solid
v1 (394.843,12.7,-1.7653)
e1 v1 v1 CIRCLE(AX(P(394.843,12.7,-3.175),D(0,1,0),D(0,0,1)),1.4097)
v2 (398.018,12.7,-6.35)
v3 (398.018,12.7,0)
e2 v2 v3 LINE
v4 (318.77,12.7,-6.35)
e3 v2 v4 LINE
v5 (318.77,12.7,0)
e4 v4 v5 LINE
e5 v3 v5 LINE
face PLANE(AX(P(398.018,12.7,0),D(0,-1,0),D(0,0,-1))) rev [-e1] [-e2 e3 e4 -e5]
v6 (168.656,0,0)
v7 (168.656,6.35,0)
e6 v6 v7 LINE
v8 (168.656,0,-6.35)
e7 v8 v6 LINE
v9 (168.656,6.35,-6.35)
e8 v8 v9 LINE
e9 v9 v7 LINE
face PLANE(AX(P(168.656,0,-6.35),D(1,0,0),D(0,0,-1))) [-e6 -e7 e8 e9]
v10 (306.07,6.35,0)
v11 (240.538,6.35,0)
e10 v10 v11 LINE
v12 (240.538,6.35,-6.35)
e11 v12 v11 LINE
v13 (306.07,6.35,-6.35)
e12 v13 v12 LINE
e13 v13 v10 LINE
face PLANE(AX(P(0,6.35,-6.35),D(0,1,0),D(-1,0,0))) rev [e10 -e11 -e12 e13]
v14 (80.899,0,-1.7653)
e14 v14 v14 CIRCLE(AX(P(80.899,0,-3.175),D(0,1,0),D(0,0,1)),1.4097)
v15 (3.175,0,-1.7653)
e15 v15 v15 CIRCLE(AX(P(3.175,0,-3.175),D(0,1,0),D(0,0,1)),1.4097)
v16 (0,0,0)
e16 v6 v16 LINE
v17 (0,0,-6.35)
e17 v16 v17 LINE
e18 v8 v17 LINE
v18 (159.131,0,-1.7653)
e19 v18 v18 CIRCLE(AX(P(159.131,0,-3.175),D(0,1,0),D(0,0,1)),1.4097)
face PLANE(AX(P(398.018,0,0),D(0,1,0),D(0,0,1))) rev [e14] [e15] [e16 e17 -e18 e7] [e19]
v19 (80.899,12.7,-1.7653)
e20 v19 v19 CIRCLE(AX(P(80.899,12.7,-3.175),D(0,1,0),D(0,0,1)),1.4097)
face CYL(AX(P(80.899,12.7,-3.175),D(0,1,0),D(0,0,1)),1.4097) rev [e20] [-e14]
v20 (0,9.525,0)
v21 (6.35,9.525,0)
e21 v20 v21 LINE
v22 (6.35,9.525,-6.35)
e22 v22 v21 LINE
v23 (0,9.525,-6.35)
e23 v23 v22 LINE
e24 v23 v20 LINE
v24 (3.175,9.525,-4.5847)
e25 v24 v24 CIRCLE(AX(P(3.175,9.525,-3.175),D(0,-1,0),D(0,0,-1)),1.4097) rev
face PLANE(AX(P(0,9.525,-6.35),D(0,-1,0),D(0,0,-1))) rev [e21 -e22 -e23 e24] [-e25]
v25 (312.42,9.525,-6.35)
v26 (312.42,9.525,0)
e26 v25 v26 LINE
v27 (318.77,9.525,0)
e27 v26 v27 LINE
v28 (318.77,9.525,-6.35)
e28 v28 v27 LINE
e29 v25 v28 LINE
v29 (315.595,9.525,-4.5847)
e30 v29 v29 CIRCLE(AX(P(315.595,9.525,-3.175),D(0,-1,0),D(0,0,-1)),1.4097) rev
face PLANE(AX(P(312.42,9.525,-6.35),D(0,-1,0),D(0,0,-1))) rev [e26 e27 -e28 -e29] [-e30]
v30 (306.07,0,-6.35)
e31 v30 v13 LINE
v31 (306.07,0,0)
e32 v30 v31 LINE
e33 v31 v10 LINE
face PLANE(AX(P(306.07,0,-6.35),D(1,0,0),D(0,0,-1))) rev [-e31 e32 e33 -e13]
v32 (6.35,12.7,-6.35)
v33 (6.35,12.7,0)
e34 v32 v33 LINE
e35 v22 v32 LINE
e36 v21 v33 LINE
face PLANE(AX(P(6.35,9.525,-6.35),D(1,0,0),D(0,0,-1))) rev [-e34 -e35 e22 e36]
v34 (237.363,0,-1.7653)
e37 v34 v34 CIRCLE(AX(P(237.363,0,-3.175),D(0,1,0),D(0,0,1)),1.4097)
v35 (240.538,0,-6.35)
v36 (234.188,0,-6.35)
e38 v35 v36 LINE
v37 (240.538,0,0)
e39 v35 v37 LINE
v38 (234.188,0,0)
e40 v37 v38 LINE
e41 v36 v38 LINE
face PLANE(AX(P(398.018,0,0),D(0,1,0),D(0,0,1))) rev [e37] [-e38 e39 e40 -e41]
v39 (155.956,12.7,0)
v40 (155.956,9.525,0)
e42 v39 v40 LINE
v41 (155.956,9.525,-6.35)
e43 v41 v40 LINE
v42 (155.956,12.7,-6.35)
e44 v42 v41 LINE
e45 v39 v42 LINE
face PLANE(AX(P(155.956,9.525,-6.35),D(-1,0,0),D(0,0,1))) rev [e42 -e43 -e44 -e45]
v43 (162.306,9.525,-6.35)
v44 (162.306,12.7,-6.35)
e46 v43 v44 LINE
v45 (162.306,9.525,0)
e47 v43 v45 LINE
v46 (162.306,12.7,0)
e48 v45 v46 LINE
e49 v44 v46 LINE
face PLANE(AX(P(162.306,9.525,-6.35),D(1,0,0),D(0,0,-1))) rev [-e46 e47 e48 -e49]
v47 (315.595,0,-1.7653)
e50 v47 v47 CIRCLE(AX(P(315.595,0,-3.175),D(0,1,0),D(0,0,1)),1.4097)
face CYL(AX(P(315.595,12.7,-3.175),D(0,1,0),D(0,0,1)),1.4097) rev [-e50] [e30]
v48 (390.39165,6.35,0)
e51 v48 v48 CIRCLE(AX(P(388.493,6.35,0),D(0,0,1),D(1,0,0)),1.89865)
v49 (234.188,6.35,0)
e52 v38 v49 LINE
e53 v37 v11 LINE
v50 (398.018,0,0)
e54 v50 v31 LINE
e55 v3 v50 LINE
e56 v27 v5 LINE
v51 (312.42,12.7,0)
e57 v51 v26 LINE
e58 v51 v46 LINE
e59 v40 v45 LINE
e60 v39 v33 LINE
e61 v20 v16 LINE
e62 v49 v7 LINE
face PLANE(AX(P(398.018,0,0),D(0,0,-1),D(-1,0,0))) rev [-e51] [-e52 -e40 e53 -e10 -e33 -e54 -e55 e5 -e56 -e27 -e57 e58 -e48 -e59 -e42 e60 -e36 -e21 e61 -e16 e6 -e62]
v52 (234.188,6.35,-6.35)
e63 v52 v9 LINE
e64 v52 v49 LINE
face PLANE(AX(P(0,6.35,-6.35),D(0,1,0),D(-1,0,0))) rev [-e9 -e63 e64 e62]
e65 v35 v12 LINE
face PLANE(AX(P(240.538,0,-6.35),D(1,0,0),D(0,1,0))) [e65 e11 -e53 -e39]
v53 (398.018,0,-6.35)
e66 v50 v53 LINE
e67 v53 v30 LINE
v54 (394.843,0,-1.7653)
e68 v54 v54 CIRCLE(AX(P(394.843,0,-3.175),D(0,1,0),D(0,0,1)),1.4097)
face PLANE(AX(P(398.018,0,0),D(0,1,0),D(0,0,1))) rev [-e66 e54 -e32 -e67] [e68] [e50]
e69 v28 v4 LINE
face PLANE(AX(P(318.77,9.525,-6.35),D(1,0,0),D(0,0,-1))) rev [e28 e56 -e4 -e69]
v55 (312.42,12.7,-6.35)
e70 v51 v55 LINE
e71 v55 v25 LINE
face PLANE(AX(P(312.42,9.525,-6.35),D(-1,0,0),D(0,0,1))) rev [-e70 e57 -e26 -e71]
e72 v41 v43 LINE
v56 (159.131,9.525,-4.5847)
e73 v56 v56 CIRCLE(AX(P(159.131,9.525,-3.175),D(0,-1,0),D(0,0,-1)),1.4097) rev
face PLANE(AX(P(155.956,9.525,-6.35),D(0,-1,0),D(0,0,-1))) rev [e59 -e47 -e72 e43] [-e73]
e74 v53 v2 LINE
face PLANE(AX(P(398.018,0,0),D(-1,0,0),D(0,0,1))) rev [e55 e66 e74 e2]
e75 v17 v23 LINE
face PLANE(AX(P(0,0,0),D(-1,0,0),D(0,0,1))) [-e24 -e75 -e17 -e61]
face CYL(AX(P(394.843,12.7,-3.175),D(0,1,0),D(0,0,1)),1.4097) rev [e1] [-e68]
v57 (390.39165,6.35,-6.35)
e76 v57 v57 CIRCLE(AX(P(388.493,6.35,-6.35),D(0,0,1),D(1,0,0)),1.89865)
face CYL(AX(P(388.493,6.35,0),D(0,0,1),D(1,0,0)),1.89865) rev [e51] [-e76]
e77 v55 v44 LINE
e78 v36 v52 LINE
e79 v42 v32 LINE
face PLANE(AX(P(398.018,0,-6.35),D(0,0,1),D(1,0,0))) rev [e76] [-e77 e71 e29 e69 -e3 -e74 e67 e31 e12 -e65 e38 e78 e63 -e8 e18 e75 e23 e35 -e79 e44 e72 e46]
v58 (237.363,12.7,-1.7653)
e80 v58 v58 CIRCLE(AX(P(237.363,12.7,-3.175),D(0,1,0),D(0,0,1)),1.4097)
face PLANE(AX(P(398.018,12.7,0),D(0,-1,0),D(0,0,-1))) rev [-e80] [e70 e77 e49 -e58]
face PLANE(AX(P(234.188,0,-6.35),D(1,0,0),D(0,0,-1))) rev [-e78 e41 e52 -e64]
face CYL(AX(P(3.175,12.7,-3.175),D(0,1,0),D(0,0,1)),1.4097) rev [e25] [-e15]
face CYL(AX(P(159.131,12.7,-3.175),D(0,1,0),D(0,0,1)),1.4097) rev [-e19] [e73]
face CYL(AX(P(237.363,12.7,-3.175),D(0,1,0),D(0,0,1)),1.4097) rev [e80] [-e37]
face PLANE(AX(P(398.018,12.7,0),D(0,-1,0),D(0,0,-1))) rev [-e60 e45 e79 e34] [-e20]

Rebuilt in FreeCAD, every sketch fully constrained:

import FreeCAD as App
import Part
import Sketcher
Q = App.Units.Quantity


def add_polygon(sketch, points):
    """Adds a closed chain of lines whose ends are joined by coincident constraints."""
    first, n = sketch.GeometryCount, len(points)
    for a, b in zip(points, points[1:] + points[:1]):
        sketch.addGeometry(Part.LineSegment(App.Vector(*a, 0), App.Vector(*b, 0)), False)
    for i in range(n):
        sketch.addConstraint(Sketcher.Constraint("Coincident", first + i, 2, first + (i + 1) % n, 1))

doc = App.newDocument("Part")
body = doc.addObject("PartDesign::Body", "Body")

# Sketch on YZ plane
sketch1 = body.newObject("Sketcher::SketchObject", "Sketch")
sketch1.AttachmentSupport = (doc.getObject("YZ_Plane"), [""])
sketch1.MapMode = "FlatFace"
add_polygon(sketch1, [(12.7, 0), (0, 0), (0, -6.35), (12.7, -6.35)])  # lines 0-3
sketch1.addConstraint([
    Sketcher.Constraint("Horizontal", 0),
    Sketcher.Constraint("Vertical", 1),
    Sketcher.Constraint("Horizontal", 2),
    Sketcher.Constraint("Vertical", 3),
    Sketcher.Constraint("Coincident", 0, 2, -1, 1),
    Sketcher.Constraint("DistanceX", 0, 2, 0, 1, Q("0.5 in")),
    Sketcher.Constraint("DistanceY", 1, 2, 1, 1, Q("0.25 in")),
])
pad1 = body.newObject("PartDesign::Pad", "Pad")
pad1.Profile = sketch1
pad1.Length = Q("15.67 in")

# Sketch on XZ plane
sketch2 = body.newObject("Sketcher::SketchObject", "Sketch001")
sketch2.AttachmentSupport = (doc.getObject("XZ_Plane"), [""])
sketch2.MapMode = "FlatFace"
sketch2.AttachmentOffset = App.Placement(App.Vector(0, 0, -0.5 * 25.4), App.Rotation())
sketch2.addGeometry([
    Part.Circle(App.Vector(3.175, -3.175, 0), App.Vector(0, 0, 1), 1.4097),  # 0
    Part.Circle(App.Vector(159.131, -3.175, 0), App.Vector(0, 0, 1), 1.4097),  # 1
    Part.Circle(App.Vector(80.899, -3.175, 0), App.Vector(0, 0, 1), 1.4097),  # 2
    Part.Circle(App.Vector(237.363, -3.175, 0), App.Vector(0, 0, 1), 1.4097),  # 3
    Part.Circle(App.Vector(315.595, -3.175, 0), App.Vector(0, 0, 1), 1.4097),  # 4
    Part.Circle(App.Vector(394.843, -3.175, 0), App.Vector(0, 0, 1), 1.4097),  # 5
], False)
sketch2.addConstraint([
    Sketcher.Constraint("Equal", 0, 1),
    Sketcher.Constraint("Equal", 1, 2),
    Sketcher.Constraint("Equal", 2, 3),
    Sketcher.Constraint("Equal", 3, 4),
    Sketcher.Constraint("Equal", 4, 5),
    Sketcher.Constraint("Horizontal", 0, 3, 1, 3),
    Sketcher.Constraint("Horizontal", 1, 3, 2, 3),
    Sketcher.Constraint("Horizontal", 2, 3, 3, 3),
    Sketcher.Constraint("Horizontal", 3, 3, 4, 3),
    Sketcher.Constraint("Horizontal", 4, 3, 5, 3),
    Sketcher.Constraint("Diameter", 0, Q("0.111 in")),
    Sketcher.Constraint("DistanceX", 0, 3, 4, 3, Q("12.3 in")),
    Sketcher.Constraint("DistanceX", 3, 3, 5, 3, Q("6.2 in")),
    Sketcher.Constraint("DistanceX", 0, 3, 1, 3, Q("6.14 in")),
    Sketcher.Constraint("DistanceX", 0, 3, 2, 3, Q("3.06 in")),
    Sketcher.Constraint("DistanceX", 1, 3, 3, 3, Q("3.08 in")),
    Sketcher.Constraint("DistanceX", -1, 1, 0, 3, Q("0.125 in")),
    Sketcher.Constraint("DistanceY", 0, 3, -1, 1, Q("0.125 in")),
])
doc.recompute()
hole = body.newObject("PartDesign::Hole", "Hole")
hole.Profile = sketch2
hole.ThreadType = "None"
hole.Diameter = Q("0.111 in")
hole.DepthType = "ThroughAll"
hole.Reversed = True

# Sketch on XY plane
sketch3 = body.newObject("Sketcher::SketchObject", "Sketch002")
sketch3.AttachmentSupport = (doc.getObject("XY_Plane"), [""])
sketch3.MapMode = "FlatFace"
add_polygon(sketch3, [(312.42, 15.875), (312.42, 9.525), (318.77, 9.525), (318.77, 15.875)])  # lines 0-3
add_polygon(sketch3, [(155.956, 15.875), (155.956, 9.525), (162.306, 9.525), (162.306, 15.875)])  # lines 4-7
add_polygon(sketch3, [(0, 15.875), (0, 9.525), (6.35, 9.525), (6.35, 15.875)])  # lines 8-11
sketch3.addConstraint([
    Sketcher.Constraint("Vertical", 0),
    Sketcher.Constraint("Horizontal", 1),
    Sketcher.Constraint("Vertical", 2),
    Sketcher.Constraint("Horizontal", 3),
    Sketcher.Constraint("Vertical", 4),
    Sketcher.Constraint("Horizontal", 5),
    Sketcher.Constraint("Vertical", 6),
    Sketcher.Constraint("Horizontal", 7),
    Sketcher.Constraint("Vertical", 8),
    Sketcher.Constraint("Horizontal", 9),
    Sketcher.Constraint("Vertical", 10),
    Sketcher.Constraint("Horizontal", 11),
    Sketcher.Constraint("PointOnObject", 8, 2, -2),
    Sketcher.Constraint("Horizontal", 1, 2, 4, 2),
    Sketcher.Constraint("Horizontal", 3, 2, 6, 2),
    Sketcher.Constraint("Horizontal", 5, 2, 8, 2),
    Sketcher.Constraint("Horizontal", 7, 2, 10, 2),
    Sketcher.Constraint("Equal", 3, 5),
    Sketcher.Constraint("Equal", 7, 9),
    Sketcher.Constraint("Equal", 11, 0),
    Sketcher.Constraint("DistanceX", 1, 1, 1, 2, Q("0.25 in")),
    Sketcher.Constraint("DistanceX", -1, 1, 0, 2, Q("12.3 in")),
    Sketcher.Constraint("DistanceX", -1, 1, 4, 2, Q("6.14 in")),
    Sketcher.Constraint("DistanceY", -1, 1, 0, 2, Q("0.375 in")),
])
pocket1 = body.newObject("PartDesign::Pocket", "Pocket")
pocket1.Profile = sketch3
pocket1.Type = "ThroughAll"

# Sketch on XY plane
sketch4 = body.newObject("Sketcher::SketchObject", "Sketch003")
sketch4.AttachmentSupport = (doc.getObject("XY_Plane"), [""])
sketch4.MapMode = "FlatFace"
sketch4.addGeometry(Part.Circle(App.Vector(388.493, 6.35, 0), App.Vector(0, 0, 1), 1.89865), False)
sketch4.addConstraint([
    Sketcher.Constraint("Diameter", 0, Q("0.1495 in")),
    Sketcher.Constraint("DistanceY", -1, 1, 0, 3, Q("0.25 in")),
    Sketcher.Constraint("DistanceX", -1, 1, 0, 3, Q("15.295 in")),
])
doc.recompute()
hole2 = body.newObject("PartDesign::Hole", "Hole001")
hole2.Profile = sketch4
hole2.ThreadType = "None"
hole2.Diameter = Q("0.1495 in")
hole2.DepthType = "ThroughAll"

# Sketch on XY plane
sketch5 = body.newObject("Sketcher::SketchObject", "Sketch004")
sketch5.AttachmentSupport = (doc.getObject("XY_Plane"), [""])
sketch5.MapMode = "FlatFace"
add_polygon(sketch5, [(168.656, 6.35), (168.656, 0), (234.188, 0), (234.188, 6.35)])  # lines 0-3
add_polygon(sketch5, [(240.538, 6.35), (240.538, 0), (306.07, 0), (306.07, 6.35)])  # lines 4-7
sketch5.addConstraint([
    Sketcher.Constraint("Vertical", 0),
    Sketcher.Constraint("Horizontal", 1),
    Sketcher.Constraint("Vertical", 2),
    Sketcher.Constraint("Horizontal", 3),
    Sketcher.Constraint("Vertical", 4),
    Sketcher.Constraint("Horizontal", 5),
    Sketcher.Constraint("Vertical", 6),
    Sketcher.Constraint("Horizontal", 7),
    Sketcher.Constraint("PointOnObject", 0, 2, -1),
    Sketcher.Constraint("PointOnObject", 4, 2, -1),
    Sketcher.Constraint("Horizontal", 3, 2, 6, 2),
    Sketcher.Constraint("Equal", 3, 5),
    Sketcher.Constraint("DistanceX", 1, 1, 1, 2, Q("2.58 in")),
    Sketcher.Constraint("DistanceY", 0, 2, 0, 1, Q("0.25 in")),
    Sketcher.Constraint("DistanceX", -1, 1, 0, 2, Q("6.64 in")),
    Sketcher.Constraint("DistanceX", -1, 1, 4, 2, Q("9.47 in")),
])
pocket2 = body.newObject("PartDesign::Pocket", "Pocket001")
pocket2.Profile = sketch5
pocket2.Type = "ThroughAll"

doc.recompute()
